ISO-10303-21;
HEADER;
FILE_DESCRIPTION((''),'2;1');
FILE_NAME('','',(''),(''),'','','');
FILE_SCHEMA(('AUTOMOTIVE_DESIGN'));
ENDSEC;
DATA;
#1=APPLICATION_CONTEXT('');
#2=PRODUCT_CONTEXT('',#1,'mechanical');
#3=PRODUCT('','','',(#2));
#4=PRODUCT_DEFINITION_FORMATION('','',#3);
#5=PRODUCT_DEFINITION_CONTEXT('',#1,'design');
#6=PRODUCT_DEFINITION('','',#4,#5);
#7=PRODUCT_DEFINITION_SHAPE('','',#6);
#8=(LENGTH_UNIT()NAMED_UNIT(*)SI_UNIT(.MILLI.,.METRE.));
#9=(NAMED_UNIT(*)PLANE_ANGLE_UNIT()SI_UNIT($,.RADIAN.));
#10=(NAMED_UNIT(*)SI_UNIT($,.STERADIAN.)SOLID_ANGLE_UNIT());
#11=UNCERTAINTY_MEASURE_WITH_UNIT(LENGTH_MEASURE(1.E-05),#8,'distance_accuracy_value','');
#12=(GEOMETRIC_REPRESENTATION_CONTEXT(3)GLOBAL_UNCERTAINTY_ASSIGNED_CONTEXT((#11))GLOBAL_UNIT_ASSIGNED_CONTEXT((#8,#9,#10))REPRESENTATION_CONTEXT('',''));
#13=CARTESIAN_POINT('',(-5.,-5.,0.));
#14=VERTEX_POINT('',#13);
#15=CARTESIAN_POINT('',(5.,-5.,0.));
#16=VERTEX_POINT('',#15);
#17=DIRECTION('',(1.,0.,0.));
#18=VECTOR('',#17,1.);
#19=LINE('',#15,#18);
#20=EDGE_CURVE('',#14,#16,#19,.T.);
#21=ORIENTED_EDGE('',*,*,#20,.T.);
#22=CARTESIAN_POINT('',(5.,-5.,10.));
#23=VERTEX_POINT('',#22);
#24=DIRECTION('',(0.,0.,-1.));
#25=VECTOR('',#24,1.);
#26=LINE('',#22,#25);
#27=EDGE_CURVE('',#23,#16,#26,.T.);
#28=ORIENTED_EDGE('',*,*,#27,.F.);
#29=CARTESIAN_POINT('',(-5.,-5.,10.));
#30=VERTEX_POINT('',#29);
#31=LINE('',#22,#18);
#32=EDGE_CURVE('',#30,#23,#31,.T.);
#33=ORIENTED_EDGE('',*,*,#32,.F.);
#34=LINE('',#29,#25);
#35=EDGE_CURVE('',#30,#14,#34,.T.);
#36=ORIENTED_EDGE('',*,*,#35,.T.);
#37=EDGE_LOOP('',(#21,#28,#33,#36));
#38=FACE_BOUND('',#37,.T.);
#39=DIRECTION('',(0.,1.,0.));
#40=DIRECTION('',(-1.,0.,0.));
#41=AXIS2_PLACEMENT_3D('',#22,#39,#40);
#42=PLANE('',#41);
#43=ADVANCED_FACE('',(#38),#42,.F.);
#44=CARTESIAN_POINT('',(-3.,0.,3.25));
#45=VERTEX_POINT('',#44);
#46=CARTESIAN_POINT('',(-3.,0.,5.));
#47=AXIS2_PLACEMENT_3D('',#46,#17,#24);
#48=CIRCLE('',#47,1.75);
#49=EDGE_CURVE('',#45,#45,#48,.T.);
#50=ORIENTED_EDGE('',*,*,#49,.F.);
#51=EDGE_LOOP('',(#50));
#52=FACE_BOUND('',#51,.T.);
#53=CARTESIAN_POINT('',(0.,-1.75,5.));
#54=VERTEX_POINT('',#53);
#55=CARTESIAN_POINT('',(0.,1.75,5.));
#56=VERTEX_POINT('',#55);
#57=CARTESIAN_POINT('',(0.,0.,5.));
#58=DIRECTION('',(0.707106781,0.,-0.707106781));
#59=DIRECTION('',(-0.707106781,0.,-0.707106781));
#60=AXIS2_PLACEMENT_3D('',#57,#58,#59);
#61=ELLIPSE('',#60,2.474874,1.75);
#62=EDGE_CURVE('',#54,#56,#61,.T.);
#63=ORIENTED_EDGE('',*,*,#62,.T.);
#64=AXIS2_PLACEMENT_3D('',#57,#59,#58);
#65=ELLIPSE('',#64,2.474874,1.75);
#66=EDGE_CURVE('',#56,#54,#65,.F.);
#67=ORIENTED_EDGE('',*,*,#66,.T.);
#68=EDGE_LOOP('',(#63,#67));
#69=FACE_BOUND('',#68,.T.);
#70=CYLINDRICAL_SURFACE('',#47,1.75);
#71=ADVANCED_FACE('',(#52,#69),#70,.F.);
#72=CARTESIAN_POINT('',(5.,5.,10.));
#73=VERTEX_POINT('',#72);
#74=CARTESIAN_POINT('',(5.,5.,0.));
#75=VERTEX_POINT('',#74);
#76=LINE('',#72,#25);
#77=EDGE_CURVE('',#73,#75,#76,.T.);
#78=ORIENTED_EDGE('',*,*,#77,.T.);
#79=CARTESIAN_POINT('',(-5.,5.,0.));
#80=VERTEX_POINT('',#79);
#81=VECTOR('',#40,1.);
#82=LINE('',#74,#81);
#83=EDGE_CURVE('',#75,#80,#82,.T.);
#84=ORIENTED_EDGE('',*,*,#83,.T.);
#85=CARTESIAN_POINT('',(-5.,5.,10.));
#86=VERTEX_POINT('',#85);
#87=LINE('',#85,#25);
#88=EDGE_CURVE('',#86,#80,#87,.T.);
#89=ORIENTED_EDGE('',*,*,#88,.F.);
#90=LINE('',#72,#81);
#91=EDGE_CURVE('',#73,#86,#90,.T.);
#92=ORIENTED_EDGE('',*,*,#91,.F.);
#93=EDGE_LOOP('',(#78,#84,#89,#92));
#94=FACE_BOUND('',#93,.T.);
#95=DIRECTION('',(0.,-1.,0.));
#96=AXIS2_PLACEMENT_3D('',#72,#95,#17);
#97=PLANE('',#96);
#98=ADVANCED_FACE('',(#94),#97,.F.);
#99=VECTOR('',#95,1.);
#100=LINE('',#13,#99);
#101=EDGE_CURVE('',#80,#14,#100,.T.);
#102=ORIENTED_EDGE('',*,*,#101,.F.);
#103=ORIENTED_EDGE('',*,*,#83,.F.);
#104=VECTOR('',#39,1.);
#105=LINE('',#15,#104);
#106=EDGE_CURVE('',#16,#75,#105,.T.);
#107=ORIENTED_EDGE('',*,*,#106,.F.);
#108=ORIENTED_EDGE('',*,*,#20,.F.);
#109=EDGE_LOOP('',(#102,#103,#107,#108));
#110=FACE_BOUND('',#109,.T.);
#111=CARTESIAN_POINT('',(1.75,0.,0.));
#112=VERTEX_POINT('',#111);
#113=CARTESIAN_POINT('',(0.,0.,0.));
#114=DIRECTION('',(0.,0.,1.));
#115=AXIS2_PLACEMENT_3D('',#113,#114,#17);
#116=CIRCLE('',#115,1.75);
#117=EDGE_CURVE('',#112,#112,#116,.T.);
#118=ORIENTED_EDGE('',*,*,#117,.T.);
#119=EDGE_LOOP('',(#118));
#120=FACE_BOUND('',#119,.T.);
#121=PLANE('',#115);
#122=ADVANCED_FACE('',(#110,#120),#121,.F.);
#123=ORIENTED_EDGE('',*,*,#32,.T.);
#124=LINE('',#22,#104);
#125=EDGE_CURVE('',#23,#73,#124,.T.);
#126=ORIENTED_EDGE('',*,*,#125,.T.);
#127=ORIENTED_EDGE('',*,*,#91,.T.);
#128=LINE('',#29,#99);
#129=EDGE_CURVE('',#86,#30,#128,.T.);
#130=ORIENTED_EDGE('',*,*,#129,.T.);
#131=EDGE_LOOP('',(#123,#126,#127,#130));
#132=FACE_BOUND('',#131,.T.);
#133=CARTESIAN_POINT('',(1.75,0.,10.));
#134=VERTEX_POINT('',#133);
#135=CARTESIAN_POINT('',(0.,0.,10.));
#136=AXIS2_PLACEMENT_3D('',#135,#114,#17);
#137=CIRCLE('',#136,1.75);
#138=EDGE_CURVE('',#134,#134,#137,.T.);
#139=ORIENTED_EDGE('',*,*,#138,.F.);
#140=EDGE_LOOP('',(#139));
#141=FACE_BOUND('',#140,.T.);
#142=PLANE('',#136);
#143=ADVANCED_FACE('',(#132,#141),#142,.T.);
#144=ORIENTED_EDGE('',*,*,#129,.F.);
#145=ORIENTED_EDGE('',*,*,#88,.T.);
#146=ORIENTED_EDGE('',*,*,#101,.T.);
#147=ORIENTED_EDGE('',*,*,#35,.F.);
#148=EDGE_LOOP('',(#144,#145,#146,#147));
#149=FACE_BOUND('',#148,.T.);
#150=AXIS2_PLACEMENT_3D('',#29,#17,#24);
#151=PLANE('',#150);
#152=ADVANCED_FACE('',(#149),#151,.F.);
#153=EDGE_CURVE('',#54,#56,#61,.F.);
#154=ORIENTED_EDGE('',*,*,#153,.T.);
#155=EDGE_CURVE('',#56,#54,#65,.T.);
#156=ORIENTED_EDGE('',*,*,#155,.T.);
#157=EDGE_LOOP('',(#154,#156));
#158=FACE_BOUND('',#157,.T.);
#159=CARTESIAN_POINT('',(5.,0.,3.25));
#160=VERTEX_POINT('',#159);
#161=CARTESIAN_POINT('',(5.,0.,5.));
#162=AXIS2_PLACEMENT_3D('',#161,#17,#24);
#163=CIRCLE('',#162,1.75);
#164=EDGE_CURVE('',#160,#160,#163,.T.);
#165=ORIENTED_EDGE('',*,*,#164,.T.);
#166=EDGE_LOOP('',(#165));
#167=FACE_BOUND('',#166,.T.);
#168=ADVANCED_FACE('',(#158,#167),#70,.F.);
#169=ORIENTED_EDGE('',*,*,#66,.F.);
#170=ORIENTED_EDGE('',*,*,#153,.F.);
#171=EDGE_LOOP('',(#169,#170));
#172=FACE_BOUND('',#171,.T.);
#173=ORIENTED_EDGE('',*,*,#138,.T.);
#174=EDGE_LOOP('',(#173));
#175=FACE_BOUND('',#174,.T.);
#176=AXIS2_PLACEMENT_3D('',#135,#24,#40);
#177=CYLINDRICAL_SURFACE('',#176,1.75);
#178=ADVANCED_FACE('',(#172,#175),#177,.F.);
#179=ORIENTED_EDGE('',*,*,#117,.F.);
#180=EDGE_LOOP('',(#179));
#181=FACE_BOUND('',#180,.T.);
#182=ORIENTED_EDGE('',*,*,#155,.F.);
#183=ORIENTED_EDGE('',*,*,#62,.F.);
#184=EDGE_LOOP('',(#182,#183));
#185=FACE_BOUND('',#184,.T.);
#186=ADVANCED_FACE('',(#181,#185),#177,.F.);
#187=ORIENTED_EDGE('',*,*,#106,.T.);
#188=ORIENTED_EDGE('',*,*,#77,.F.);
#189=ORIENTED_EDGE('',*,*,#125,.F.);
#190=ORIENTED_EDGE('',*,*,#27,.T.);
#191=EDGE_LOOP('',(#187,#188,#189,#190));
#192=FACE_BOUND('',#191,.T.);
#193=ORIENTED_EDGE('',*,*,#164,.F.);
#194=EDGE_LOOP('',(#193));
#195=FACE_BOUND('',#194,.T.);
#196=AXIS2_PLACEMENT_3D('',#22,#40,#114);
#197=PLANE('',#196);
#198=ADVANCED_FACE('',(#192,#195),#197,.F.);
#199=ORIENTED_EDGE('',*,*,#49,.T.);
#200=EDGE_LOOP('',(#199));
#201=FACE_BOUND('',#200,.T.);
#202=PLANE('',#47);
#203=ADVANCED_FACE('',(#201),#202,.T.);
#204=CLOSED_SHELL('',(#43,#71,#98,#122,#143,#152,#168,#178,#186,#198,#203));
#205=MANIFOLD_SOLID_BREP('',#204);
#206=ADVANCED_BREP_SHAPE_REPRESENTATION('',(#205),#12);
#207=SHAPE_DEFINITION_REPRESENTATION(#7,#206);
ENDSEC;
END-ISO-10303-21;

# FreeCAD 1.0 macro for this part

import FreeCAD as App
import Part
import Sketcher
from FreeCAD import Vector
Q = App.Units.Quantity

doc = App.newDocument("Part")
body = doc.addObject("PartDesign::Body", "Body")

# Sketch on XY plane
sketch1 = body.newObject("Sketcher::SketchObject", "Sketch")
sketch1.AttachmentSupport = (doc.getObject("XY_Plane"), [""])
sketch1.MapMode = "FlatFace"
sketch1.addGeometry([
    Part.LineSegment(Vector(-5, 5, 0), Vector(-5, -5, 0)),  # 0
    Part.LineSegment(Vector(-5, -5, 0), Vector(5, -5, 0)),  # 1
    Part.LineSegment(Vector(5, -5, 0), Vector(5, 5, 0)),  # 2
    Part.LineSegment(Vector(5, 5, 0), Vector(-5, 5, 0)),  # 3
    Part.Circle(Vector(0, 0, 0), Vector(0, 0, 1), 1.8),  # 4
], False)
sketch1.addConstraint([
    Sketcher.Constraint("Coincident", 0, 2, 1, 1),
    Sketcher.Constraint("Coincident", 1, 2, 2, 1),
    Sketcher.Constraint("Coincident", 2, 2, 3, 1),
    Sketcher.Constraint("Coincident", 3, 2, 0, 1),
    Sketcher.Constraint("Vertical", 0),
    Sketcher.Constraint("Horizontal", 1),
    Sketcher.Constraint("Vertical", 2),
    Sketcher.Constraint("Horizontal", 3),
    Sketcher.Constraint("Coincident", 4, 3, -1, 1),
    Sketcher.Constraint("Symmetric", 0, 2, 2, 2, -1, 1),
    Sketcher.Constraint("Equal", 3, 0),
    Sketcher.Constraint("Diameter", 4, Q("3.5 mm")),
    Sketcher.Constraint("DistanceX", 1, 1, 1, 2, Q("10 mm")),
])
pad1 = body.newObject("PartDesign::Pad", "Pad")
pad1.Profile = sketch1
pad1.Length = 10

# Sketch on YZ plane
sketch2 = body.newObject("Sketcher::SketchObject", "Sketch001")
sketch2.AttachmentSupport = (doc.getObject("YZ_Plane"), [""])
sketch2.MapMode = "FlatFace"
sketch2.AttachmentOffset = App.Placement(Vector(0, 0, 5), App.Rotation())
sketch2.addGeometry(Part.Circle(Vector(0, 5, 0), Vector(0, 0, 1), 1.8), False)
sketch2.addConstraint([
    Sketcher.Constraint("PointOnObject", 0, 3, -2),
    Sketcher.Constraint("Diameter", 0, Q("3.5 mm")),
    Sketcher.Constraint("DistanceY", -1, 1, 0, 3, Q("5 mm")),
])
pocket1 = body.newObject("PartDesign::Pocket", "Pocket")
pocket1.Profile = sketch2
pocket1.Length = 8

doc.recompute()
